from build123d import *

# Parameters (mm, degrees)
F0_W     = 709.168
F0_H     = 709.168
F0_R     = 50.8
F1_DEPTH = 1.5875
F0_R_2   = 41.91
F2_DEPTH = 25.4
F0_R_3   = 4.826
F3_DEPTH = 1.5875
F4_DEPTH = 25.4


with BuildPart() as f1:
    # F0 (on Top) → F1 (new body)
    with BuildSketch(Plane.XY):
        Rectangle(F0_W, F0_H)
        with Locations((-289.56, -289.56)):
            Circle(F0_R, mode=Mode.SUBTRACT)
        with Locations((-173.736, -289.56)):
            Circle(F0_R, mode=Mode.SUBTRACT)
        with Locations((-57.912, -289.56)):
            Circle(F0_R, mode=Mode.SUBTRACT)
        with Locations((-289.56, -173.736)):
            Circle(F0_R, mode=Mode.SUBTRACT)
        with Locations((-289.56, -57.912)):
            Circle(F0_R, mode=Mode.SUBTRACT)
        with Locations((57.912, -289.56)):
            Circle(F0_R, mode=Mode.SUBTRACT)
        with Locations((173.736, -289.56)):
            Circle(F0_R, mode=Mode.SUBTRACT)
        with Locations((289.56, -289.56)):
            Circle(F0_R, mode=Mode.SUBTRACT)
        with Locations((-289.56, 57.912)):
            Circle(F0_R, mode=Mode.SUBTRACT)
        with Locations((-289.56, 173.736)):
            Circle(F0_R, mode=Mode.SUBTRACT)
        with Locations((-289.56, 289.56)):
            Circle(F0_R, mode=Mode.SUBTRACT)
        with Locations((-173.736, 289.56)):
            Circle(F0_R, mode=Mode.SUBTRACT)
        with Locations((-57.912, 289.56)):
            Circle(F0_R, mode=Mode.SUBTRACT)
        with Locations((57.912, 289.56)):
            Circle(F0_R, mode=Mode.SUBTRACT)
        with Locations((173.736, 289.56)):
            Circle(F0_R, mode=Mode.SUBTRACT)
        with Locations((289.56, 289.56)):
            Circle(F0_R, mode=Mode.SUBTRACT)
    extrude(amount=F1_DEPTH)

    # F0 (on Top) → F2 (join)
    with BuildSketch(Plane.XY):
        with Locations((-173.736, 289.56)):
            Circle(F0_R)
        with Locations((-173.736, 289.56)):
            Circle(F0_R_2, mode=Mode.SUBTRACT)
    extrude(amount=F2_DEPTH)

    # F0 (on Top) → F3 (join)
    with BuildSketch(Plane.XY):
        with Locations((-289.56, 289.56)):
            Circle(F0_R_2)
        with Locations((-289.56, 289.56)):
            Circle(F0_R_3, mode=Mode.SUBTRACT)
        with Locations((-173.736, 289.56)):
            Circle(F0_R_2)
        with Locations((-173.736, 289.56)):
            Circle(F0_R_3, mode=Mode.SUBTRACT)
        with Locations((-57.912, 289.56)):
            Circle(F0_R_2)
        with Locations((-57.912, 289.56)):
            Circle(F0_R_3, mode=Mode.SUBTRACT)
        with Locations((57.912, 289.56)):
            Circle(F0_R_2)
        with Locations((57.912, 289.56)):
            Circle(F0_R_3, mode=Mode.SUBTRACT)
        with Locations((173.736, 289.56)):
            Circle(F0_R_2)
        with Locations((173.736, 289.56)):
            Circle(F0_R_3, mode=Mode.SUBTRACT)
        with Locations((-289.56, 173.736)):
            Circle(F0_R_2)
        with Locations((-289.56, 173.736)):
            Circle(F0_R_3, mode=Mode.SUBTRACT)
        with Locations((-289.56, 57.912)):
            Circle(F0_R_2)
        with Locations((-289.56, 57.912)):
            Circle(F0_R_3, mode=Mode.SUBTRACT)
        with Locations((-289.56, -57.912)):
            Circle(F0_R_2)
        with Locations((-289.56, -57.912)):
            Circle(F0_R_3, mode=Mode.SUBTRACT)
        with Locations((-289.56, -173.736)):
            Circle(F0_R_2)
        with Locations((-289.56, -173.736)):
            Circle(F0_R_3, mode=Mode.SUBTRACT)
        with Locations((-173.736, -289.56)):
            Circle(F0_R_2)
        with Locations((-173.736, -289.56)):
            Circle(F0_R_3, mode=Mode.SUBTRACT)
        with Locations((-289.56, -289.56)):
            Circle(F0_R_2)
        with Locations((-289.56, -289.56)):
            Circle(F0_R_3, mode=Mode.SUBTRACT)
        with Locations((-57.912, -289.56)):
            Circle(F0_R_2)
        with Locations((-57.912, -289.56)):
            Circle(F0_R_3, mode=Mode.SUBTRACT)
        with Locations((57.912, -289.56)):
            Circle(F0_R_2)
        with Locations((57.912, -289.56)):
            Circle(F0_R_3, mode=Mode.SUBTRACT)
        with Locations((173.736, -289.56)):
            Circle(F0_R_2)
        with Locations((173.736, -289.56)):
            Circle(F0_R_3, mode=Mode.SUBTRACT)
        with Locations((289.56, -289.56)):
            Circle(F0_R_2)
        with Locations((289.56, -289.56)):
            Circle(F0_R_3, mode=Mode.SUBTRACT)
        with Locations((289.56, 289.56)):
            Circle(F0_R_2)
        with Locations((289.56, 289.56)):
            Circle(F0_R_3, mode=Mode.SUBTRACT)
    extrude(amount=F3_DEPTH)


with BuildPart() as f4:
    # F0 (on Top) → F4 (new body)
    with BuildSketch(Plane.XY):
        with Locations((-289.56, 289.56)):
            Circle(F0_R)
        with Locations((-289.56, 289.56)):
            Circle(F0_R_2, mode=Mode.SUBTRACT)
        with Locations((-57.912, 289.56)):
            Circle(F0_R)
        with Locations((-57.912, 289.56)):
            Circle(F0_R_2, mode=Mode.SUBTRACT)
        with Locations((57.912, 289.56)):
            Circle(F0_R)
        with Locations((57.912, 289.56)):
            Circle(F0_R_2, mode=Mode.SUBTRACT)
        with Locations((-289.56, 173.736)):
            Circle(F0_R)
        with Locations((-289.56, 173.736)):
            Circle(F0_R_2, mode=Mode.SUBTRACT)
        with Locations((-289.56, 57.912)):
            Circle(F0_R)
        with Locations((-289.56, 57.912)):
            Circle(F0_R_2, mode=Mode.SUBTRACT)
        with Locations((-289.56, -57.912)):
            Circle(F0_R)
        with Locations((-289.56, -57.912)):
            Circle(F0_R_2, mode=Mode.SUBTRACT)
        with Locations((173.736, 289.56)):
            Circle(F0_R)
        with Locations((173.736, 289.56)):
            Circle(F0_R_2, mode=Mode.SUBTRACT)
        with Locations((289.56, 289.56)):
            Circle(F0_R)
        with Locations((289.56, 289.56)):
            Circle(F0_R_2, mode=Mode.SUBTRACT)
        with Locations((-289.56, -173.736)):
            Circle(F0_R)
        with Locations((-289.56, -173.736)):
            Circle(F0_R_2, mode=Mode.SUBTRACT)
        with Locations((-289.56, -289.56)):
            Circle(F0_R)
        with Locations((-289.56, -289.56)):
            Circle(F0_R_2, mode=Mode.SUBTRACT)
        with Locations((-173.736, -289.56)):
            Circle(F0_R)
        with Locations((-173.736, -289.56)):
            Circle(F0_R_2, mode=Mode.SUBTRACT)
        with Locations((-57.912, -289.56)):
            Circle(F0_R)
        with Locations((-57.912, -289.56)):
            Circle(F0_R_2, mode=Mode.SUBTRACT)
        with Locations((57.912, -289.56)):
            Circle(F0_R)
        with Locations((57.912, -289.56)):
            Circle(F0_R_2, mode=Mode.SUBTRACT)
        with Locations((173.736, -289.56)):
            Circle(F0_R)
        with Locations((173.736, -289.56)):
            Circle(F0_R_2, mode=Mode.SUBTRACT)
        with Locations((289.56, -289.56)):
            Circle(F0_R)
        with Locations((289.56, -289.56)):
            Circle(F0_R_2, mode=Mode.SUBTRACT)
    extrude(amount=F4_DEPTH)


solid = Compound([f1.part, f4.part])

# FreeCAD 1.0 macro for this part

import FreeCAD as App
import Part
import Sketcher
from FreeCAD import Vector
Q = App.Units.Quantity


def add_polygon(sketch, points):
    """Adds a closed chain of lines whose ends are joined by coincident constraints."""
    first, n = sketch.GeometryCount, len(points)
    for a, b in zip(points, points[1:] + points[:1]):
        sketch.addGeometry(Part.LineSegment(App.Vector(*a, 0), App.Vector(*b, 0)), False)
    for i in range(n):
        sketch.addConstraint(Sketcher.Constraint("Coincident", first + i, 2, first + (i + 1) % n, 1))

doc = App.newDocument("Part")
params = doc.addObject("Spreadsheet::Sheet", "Params")
for row, (alias, value) in enumerate([
    ("sketch1_diameter", "4 in"),
    ("sketch1_width", "27.92 in"),
    ("pad1_length", "0.0625 in"),
    ("sketch2_diameter", "4 in"),
    ("sketch2_diameter2", "3.3 in"),
    ("pad2_length", "1 in"),
    ("sketch3_diameter", "3.3 in"),
    ("sketch3_diameter2", "0.38 in"),
    ("pad3_length", "0.0625 in"),
    ("sketch4_diameter", "4 in"),
    ("sketch4_diameter2", "3.3 in"),
    ("pad4_length", "1 in"),
], start=1):
    params.set(f"A{row}", alias)
    params.set(f"B{row}", "=" + value)
    params.setAlias(f"B{row}", alias)

body = doc.addObject("PartDesign::Body", "Body")
body.AllowCompound = True

# Sketch on XY plane
sketch1 = doc.addObject("Sketcher::SketchObject", "Sketch")
body.addObject(sketch1)
sketch1.AttachmentSupport = (doc.XY_Plane, [""])
sketch1.MapMode = "FlatFace"
add_polygon(sketch1, [(-355, 355), (-355, -355), (355, -355), (355, 355)])  # lines 0-3
sketch1.addGeometry(Part.Circle(Vector(-290, -290, 0), Vector(0, 0, 1), 51), False)  # 4
sketch1.addGeometry(Part.Circle(Vector(-174, -290, 0), Vector(0, 0, 1), 51), False)  # 5
sketch1.addGeometry(Part.Circle(Vector(-290, -174, 0), Vector(0, 0, 1), 51), False)  # 6
sketch1.addGeometry(Part.Circle(Vector(-58, -290, 0), Vector(0, 0, 1), 51), False)  # 7
sketch1.addGeometry(Part.Circle(Vector(-290, -58, 0), Vector(0, 0, 1), 51), False)  # 8
sketch1.addGeometry(Part.Circle(Vector(58, -290, 0), Vector(0, 0, 1), 51), False)  # 9
sketch1.addGeometry(Part.Circle(Vector(174, -290, 0), Vector(0, 0, 1), 51), False)  # 10
sketch1.addGeometry(Part.Circle(Vector(290, -290, 0), Vector(0, 0, 1), 51), False)  # 11
sketch1.addGeometry(Part.Circle(Vector(-290, 58, 0), Vector(0, 0, 1), 51), False)  # 12
sketch1.addGeometry(Part.Circle(Vector(-290, 174, 0), Vector(0, 0, 1), 51), False)  # 13
sketch1.addGeometry(Part.Circle(Vector(-290, 290, 0), Vector(0, 0, 1), 51), False)  # 14
sketch1.addGeometry(Part.Circle(Vector(-174, 290, 0), Vector(0, 0, 1), 51), False)  # 15
sketch1.addGeometry(Part.Circle(Vector(-58, 290, 0), Vector(0, 0, 1), 51), False)  # 16
sketch1.addGeometry(Part.Circle(Vector(58, 290, 0), Vector(0, 0, 1), 51), False)  # 17
sketch1.addGeometry(Part.Circle(Vector(174, 290, 0), Vector(0, 0, 1), 51), False)  # 18
sketch1.addGeometry(Part.Circle(Vector(290, 290, 0), Vector(0, 0, 1), 51), False)  # 19
sketch1.addConstraint(Sketcher.Constraint("Vertical", 0))
sketch1.addConstraint(Sketcher.Constraint("Horizontal", 1))
sketch1.addConstraint(Sketcher.Constraint("Vertical", 2))
sketch1.addConstraint(Sketcher.Constraint("Horizontal", 3))
sketch1.addConstraint(Sketcher.Constraint("Equal", 4, 5))
sketch1.addConstraint(Sketcher.Constraint("Equal", 5, 6))
sketch1.addConstraint(Sketcher.Constraint("Equal", 6, 7))
sketch1.addConstraint(Sketcher.Constraint("Equal", 7, 8))
sketch1.addConstraint(Sketcher.Constraint("Equal", 8, 9))
sketch1.addConstraint(Sketcher.Constraint("Equal", 9, 10))
sketch1.addConstraint(Sketcher.Constraint("Equal", 10, 11))
sketch1.addConstraint(Sketcher.Constraint("Equal", 11, 12))
sketch1.addConstraint(Sketcher.Constraint("Equal", 12, 13))
sketch1.addConstraint(Sketcher.Constraint("Equal", 13, 14))
sketch1.addConstraint(Sketcher.Constraint("Equal", 14, 15))
sketch1.addConstraint(Sketcher.Constraint("Equal", 15, 16))
sketch1.addConstraint(Sketcher.Constraint("Equal", 16, 17))
sketch1.addConstraint(Sketcher.Constraint("Equal", 17, 18))
sketch1.addConstraint(Sketcher.Constraint("Equal", 18, 19))
sketch1.addConstraint(Sketcher.Constraint("Symmetric", 11, 3, 14, 3, -1, 1))
sketch1.addConstraint(Sketcher.Constraint("Symmetric", 10, 3, 15, 3, -1, 1))
sketch1.addConstraint(Sketcher.Constraint("Symmetric", 9, 3, 16, 3, -1, 1))
sketch1.addConstraint(Sketcher.Constraint("Symmetric", 7, 3, 17, 3, -1, 1))
sketch1.addConstraint(Sketcher.Constraint("Symmetric", 5, 3, 18, 3, -1, 1))
sketch1.addConstraint(Sketcher.Constraint("Symmetric", 4, 3, 19, 3, -1, 1))
sketch1.addConstraint(Sketcher.Constraint("Symmetric", 0, 2, 2, 2, -1, 1))
sketch1.addConstraint(Sketcher.Constraint("Symmetric", 7, 3, 9, 3, -2))
sketch1.addConstraint(Sketcher.Constraint("Symmetric", 5, 3, 10, 3, -2))
sketch1.addConstraint(Sketcher.Constraint("Symmetric", 4, 3, 11, 3, -2))
sketch1.addConstraint(Sketcher.Constraint("Symmetric", 8, 3, 12, 3, -1))
sketch1.addConstraint(Sketcher.Constraint("Symmetric", 6, 3, 13, 3, -1))
sketch1.addConstraint(Sketcher.Constraint("Horizontal", 4, 3, 5, 3))
sketch1.addConstraint(Sketcher.Constraint("Horizontal", 5, 3, 7, 3))
sketch1.addConstraint(Sketcher.Constraint("Vertical", 4, 3, 6, 3))
sketch1.addConstraint(Sketcher.Constraint("Vertical", 6, 3, 8, 3))
sketch1.addConstraint(Sketcher.Constraint("Equal", 3, 0))
sketch1.addConstraint(Sketcher.Constraint("Diameter", 4, Q("4 in")))
sketch1.addConstraint(Sketcher.Constraint("DistanceX", 1, 1, 1, 2, Q("27.92 in")))
sketch1.addConstraint(Sketcher.Constraint("DistanceX", 4, 3, -1, 1, Q("11.4 in")))
sketch1.addConstraint(Sketcher.Constraint("DistanceY", 4, 3, -1, 1, Q("11.4 in")))
sketch1.addConstraint(Sketcher.Constraint("DistanceX", 5, 3, 1, 2, Q("20.8 in")))
sketch1.addConstraint(Sketcher.Constraint("DistanceY", 6, 3, -1, 1, Q("6.84 in")))
sketch1.addConstraint(Sketcher.Constraint("DistanceX", 7, 3, -1, 1, Q("2.28 in")))
sketch1.addConstraint(Sketcher.Constraint("DistanceY", 8, 3, -1, 1, Q("2.28 in")))
sketch1.setExpression("Constraints[40]", "Params.sketch1_diameter")
sketch1.setExpression("Constraints[41]", "Params.sketch1_width")
pad1 = doc.addObject("PartDesign::Pad", "Pad")
body.addObject(pad1)
pad1.Profile = sketch1
pad1.setExpression("Length", "Params.pad1_length")

# Sketch on XY plane
sketch2 = doc.addObject("Sketcher::SketchObject", "Sketch001")
body.addObject(sketch2)
sketch2.AttachmentSupport = (doc.XY_Plane, [""])
sketch2.MapMode = "FlatFace"
sketch2.addGeometry(Part.Circle(Vector(-174, 290, 0), Vector(0, 0, 1), 51), False)
sketch2.addGeometry(Part.Circle(Vector(-174, 290, 0), Vector(0, 0, 1), 42), False)
sketch2.addConstraint(Sketcher.Constraint("Coincident", 1, 3, 0, 3))
sketch2.addConstraint(Sketcher.Constraint("Diameter", 0, Q("4 in")))
sketch2.addConstraint(Sketcher.Constraint("Diameter", 1, Q("3.3 in")))
sketch2.addConstraint(Sketcher.Constraint("DistanceY", -1, 1, 0, 3, Q("11.4 in")))
sketch2.addConstraint(Sketcher.Constraint("DistanceX", 0, 3, -1, 1, Q("6.84 in")))
sketch2.setExpression("Constraints[1]", "Params.sketch2_diameter")
sketch2.setExpression("Constraints[2]", "Params.sketch2_diameter2")
pad2 = doc.addObject("PartDesign::Pad", "Pad001")
body.addObject(pad2)
pad2.Profile = sketch2
pad2.setExpression("Length", "Params.pad2_length")

# Sketch on XY plane
sketch3 = doc.addObject("Sketcher::SketchObject", "Sketch002")
body.addObject(sketch3)
sketch3.AttachmentSupport = (doc.XY_Plane, [""])
sketch3.MapMode = "FlatFace"
sketch3.addGeometry(Part.Circle(Vector(-289.6, 289.6, 0), Vector(0, 0, 1), 41.9), False)
sketch3.addGeometry(Part.Circle(Vector(-289.6, 289.6, 0), Vector(0, 0, 1), 4.8), False)
sketch3.addGeometry(Part.Circle(Vector(-173.7, 289.6, 0), Vector(0, 0, 1), 41.9), False)
sketch3.addGeometry(Part.Circle(Vector(-173.7, 289.6, 0), Vector(0, 0, 1), 4.8), False)
sketch3.addGeometry(Part.Circle(Vector(-57.9, 289.6, 0), Vector(0, 0, 1), 41.9), False)
sketch3.addGeometry(Part.Circle(Vector(-57.9, 289.6, 0), Vector(0, 0, 1), 4.8), False)
sketch3.addGeometry(Part.Circle(Vector(57.9, 289.6, 0), Vector(0, 0, 1), 41.9), False)
sketch3.addGeometry(Part.Circle(Vector(57.9, 289.6, 0), Vector(0, 0, 1), 4.8), False)
sketch3.addGeometry(Part.Circle(Vector(173.7, 289.6, 0), Vector(0, 0, 1), 41.9), False)
sketch3.addGeometry(Part.Circle(Vector(173.7, 289.6, 0), Vector(0, 0, 1), 4.8), False)
sketch3.addGeometry(Part.Circle(Vector(-289.6, 173.7, 0), Vector(0, 0, 1), 41.9), False)
sketch3.addGeometry(Part.Circle(Vector(-289.6, 173.7, 0), Vector(0, 0, 1), 4.8), False)
sketch3.addGeometry(Part.Circle(Vector(-289.6, 57.9, 0), Vector(0, 0, 1), 41.9), False)
sketch3.addGeometry(Part.Circle(Vector(-289.6, 57.9, 0), Vector(0, 0, 1), 4.8), False)
sketch3.addGeometry(Part.Circle(Vector(-289.6, -57.9, 0), Vector(0, 0, 1), 41.9), False)
sketch3.addGeometry(Part.Circle(Vector(-289.6, -57.9, 0), Vector(0, 0, 1), 4.8), False)
sketch3.addGeometry(Part.Circle(Vector(-289.6, -173.7, 0), Vector(0, 0, 1), 41.9), False)
sketch3.addGeometry(Part.Circle(Vector(-289.6, -173.7, 0), Vector(0, 0, 1), 4.8), False)
sketch3.addGeometry(Part.Circle(Vector(-173.7, -289.6, 0), Vector(0, 0, 1), 41.9), False)
sketch3.addGeometry(Part.Circle(Vector(-173.7, -289.6, 0), Vector(0, 0, 1), 4.8), False)
sketch3.addGeometry(Part.Circle(Vector(-289.6, -289.6, 0), Vector(0, 0, 1), 41.9), False)
sketch3.addGeometry(Part.Circle(Vector(-289.6, -289.6, 0), Vector(0, 0, 1), 4.8), False)
sketch3.addGeometry(Part.Circle(Vector(-57.9, -289.6, 0), Vector(0, 0, 1), 41.9), False)
sketch3.addGeometry(Part.Circle(Vector(-57.9, -289.6, 0), Vector(0, 0, 1), 4.8), False)
sketch3.addGeometry(Part.Circle(Vector(57.9, -289.6, 0), Vector(0, 0, 1), 41.9), False)
sketch3.addGeometry(Part.Circle(Vector(57.9, -289.6, 0), Vector(0, 0, 1), 4.8), False)
sketch3.addGeometry(Part.Circle(Vector(173.7, -289.6, 0), Vector(0, 0, 1), 41.9), False)
sketch3.addGeometry(Part.Circle(Vector(173.7, -289.6, 0), Vector(0, 0, 1), 4.8), False)
sketch3.addGeometry(Part.Circle(Vector(289.6, -289.6, 0), Vector(0, 0, 1), 41.9), False)
sketch3.addGeometry(Part.Circle(Vector(289.6, -289.6, 0), Vector(0, 0, 1), 4.8), False)
sketch3.addGeometry(Part.Circle(Vector(289.6, 289.6, 0), Vector(0, 0, 1), 41.9), False)
sketch3.addGeometry(Part.Circle(Vector(289.6, 289.6, 0), Vector(0, 0, 1), 4.8), False)
sketch3.addConstraint(Sketcher.Constraint("Coincident", 1, 3, 0, 3))
sketch3.addConstraint(Sketcher.Constraint("Coincident", 3, 3, 2, 3))
sketch3.addConstraint(Sketcher.Constraint("Coincident", 5, 3, 4, 3))
sketch3.addConstraint(Sketcher.Constraint("Coincident", 7, 3, 6, 3))
sketch3.addConstraint(Sketcher.Constraint("Coincident", 9, 3, 8, 3))
sketch3.addConstraint(Sketcher.Constraint("Coincident", 11, 3, 10, 3))
sketch3.addConstraint(Sketcher.Constraint("Coincident", 13, 3, 12, 3))
sketch3.addConstraint(Sketcher.Constraint("Coincident", 15, 3, 14, 3))
sketch3.addConstraint(Sketcher.Constraint("Coincident", 17, 3, 16, 3))
sketch3.addConstraint(Sketcher.Constraint("Coincident", 19, 3, 18, 3))
sketch3.addConstraint(Sketcher.Constraint("Coincident", 21, 3, 20, 3))
sketch3.addConstraint(Sketcher.Constraint("Coincident", 23, 3, 22, 3))
sketch3.addConstraint(Sketcher.Constraint("Coincident", 25, 3, 24, 3))
sketch3.addConstraint(Sketcher.Constraint("Coincident", 27, 3, 26, 3))
sketch3.addConstraint(Sketcher.Constraint("Coincident", 29, 3, 28, 3))
sketch3.addConstraint(Sketcher.Constraint("Coincident", 31, 3, 30, 3))
sketch3.addConstraint(Sketcher.Constraint("Equal", 0, 2))
sketch3.addConstraint(Sketcher.Constraint("Equal", 1, 3))
sketch3.addConstraint(Sketcher.Constraint("Equal", 2, 4))
sketch3.addConstraint(Sketcher.Constraint("Equal", 3, 5))
sketch3.addConstraint(Sketcher.Constraint("Equal", 4, 6))
sketch3.addConstraint(Sketcher.Constraint("Equal", 5, 7))
sketch3.addConstraint(Sketcher.Constraint("Equal", 6, 8))
sketch3.addConstraint(Sketcher.Constraint("Equal", 7, 9))
sketch3.addConstraint(Sketcher.Constraint("Equal", 8, 10))
sketch3.addConstraint(Sketcher.Constraint("Equal", 9, 11))
sketch3.addConstraint(Sketcher.Constraint("Equal", 10, 12))
sketch3.addConstraint(Sketcher.Constraint("Equal", 11, 13))
sketch3.addConstraint(Sketcher.Constraint("Equal", 12, 14))
sketch3.addConstraint(Sketcher.Constraint("Equal", 13, 15))
sketch3.addConstraint(Sketcher.Constraint("Equal", 14, 16))
sketch3.addConstraint(Sketcher.Constraint("Equal", 15, 17))
sketch3.addConstraint(Sketcher.Constraint("Equal", 16, 18))
sketch3.addConstraint(Sketcher.Constraint("Equal", 17, 19))
sketch3.addConstraint(Sketcher.Constraint("Equal", 18, 20))
sketch3.addConstraint(Sketcher.Constraint("Equal", 19, 21))
sketch3.addConstraint(Sketcher.Constraint("Equal", 20, 22))
sketch3.addConstraint(Sketcher.Constraint("Equal", 21, 23))
sketch3.addConstraint(Sketcher.Constraint("Equal", 22, 24))
sketch3.addConstraint(Sketcher.Constraint("Equal", 23, 25))
sketch3.addConstraint(Sketcher.Constraint("Equal", 24, 26))
sketch3.addConstraint(Sketcher.Constraint("Equal", 25, 27))
sketch3.addConstraint(Sketcher.Constraint("Equal", 26, 28))
sketch3.addConstraint(Sketcher.Constraint("Equal", 27, 29))
sketch3.addConstraint(Sketcher.Constraint("Equal", 28, 30))
sketch3.addConstraint(Sketcher.Constraint("Equal", 29, 31))
sketch3.addConstraint(Sketcher.Constraint("Symmetric", 8, 3, 18, 3, -1, 1))
sketch3.addConstraint(Sketcher.Constraint("Symmetric", 6, 3, 22, 3, -1, 1))
sketch3.addConstraint(Sketcher.Constraint("Symmetric", 4, 3, 24, 3, -1, 1))
sketch3.addConstraint(Sketcher.Constraint("Symmetric", 2, 3, 26, 3, -1, 1))
sketch3.addConstraint(Sketcher.Constraint("Symmetric", 0, 3, 28, 3, -1, 1))
sketch3.addConstraint(Sketcher.Constraint("Symmetric", 20, 3, 30, 3, -1, 1))
sketch3.addConstraint(Sketcher.Constraint("Symmetric", 4, 3, 6, 3, -2))
sketch3.addConstraint(Sketcher.Constraint("Symmetric", 2, 3, 8, 3, -2))
sketch3.addConstraint(Sketcher.Constraint("Symmetric", 20, 3, 28, 3, -2))
sketch3.addConstraint(Sketcher.Constraint("Symmetric", 12, 3, 14, 3, -1))
sketch3.addConstraint(Sketcher.Constraint("Symmetric", 10, 3, 16, 3, -1))
sketch3.addConstraint(Sketcher.Constraint("Horizontal", 1, 3, 2, 3))
sketch3.addConstraint(Sketcher.Constraint("Horizontal", 3, 3, 4, 3))
sketch3.addConstraint(Sketcher.Constraint("Vertical", 1, 3, 10, 3))
sketch3.addConstraint(Sketcher.Constraint("Vertical", 11, 3, 12, 3))
sketch3.addConstraint(Sketcher.Constraint("Diameter", 0, Q("3.3 in")))
sketch3.addConstraint(Sketcher.Constraint("Diameter", 1, Q("0.38 in")))
sketch3.addConstraint(Sketcher.Constraint("DistanceX", 0, 3, -1, 1, Q("11.4 in")))
sketch3.addConstraint(Sketcher.Constraint("DistanceY", -1, 1, 0, 3, Q("11.4 in")))
sketch3.addConstraint(Sketcher.Constraint("DistanceX", 2, 3, -1, 1, Q("6.84 in")))
sketch3.addConstraint(Sketcher.Constraint("DistanceX", 4, 3, -1, 1, Q("2.28 in")))
sketch3.addConstraint(Sketcher.Constraint("DistanceY", -1, 1, 10, 3, Q("6.84 in")))
sketch3.addConstraint(Sketcher.Constraint("DistanceY", -1, 1, 12, 3, Q("2.28 in")))
sketch3.setExpression("Constraints[61]", "Params.sketch3_diameter")
sketch3.setExpression("Constraints[62]", "Params.sketch3_diameter2")
pad3 = doc.addObject("PartDesign::Pad", "Pad002")
body.addObject(pad3)
pad3.Profile = sketch3
pad3.setExpression("Length", "Params.pad3_length")
body2 = doc.addObject("PartDesign::Body", "Body001")
body2.AllowCompound = True

# Sketch on XY plane
sketch4 = doc.addObject("Sketcher::SketchObject", "Sketch003")
body2.addObject(sketch4)
sketch4.AttachmentSupport = (doc.getObject("XY_Plane001"), [""])
sketch4.MapMode = "FlatFace"
sketch4.addGeometry(Part.Circle(Vector(-290, 290, 0), Vector(0, 0, 1), 51), False)
sketch4.addGeometry(Part.Circle(Vector(-290, 290, 0), Vector(0, 0, 1), 42), False)
sketch4.addGeometry(Part.Circle(Vector(-58, 290, 0), Vector(0, 0, 1), 51), False)
sketch4.addGeometry(Part.Circle(Vector(-58, 290, 0), Vector(0, 0, 1), 42), False)
sketch4.addGeometry(Part.Circle(Vector(58, 290, 0), Vector(0, 0, 1), 51), False)
sketch4.addGeometry(Part.Circle(Vector(58, 290, 0), Vector(0, 0, 1), 42), False)
sketch4.addGeometry(Part.Circle(Vector(-290, 174, 0), Vector(0, 0, 1), 51), False)
sketch4.addGeometry(Part.Circle(Vector(-290, 174, 0), Vector(0, 0, 1), 42), False)
sketch4.addGeometry(Part.Circle(Vector(-290, 58, 0), Vector(0, 0, 1), 51), False)
sketch4.addGeometry(Part.Circle(Vector(-290, 58, 0), Vector(0, 0, 1), 42), False)
sketch4.addGeometry(Part.Circle(Vector(-290, -58, 0), Vector(0, 0, 1), 51), False)
sketch4.addGeometry(Part.Circle(Vector(-290, -58, 0), Vector(0, 0, 1), 42), False)
sketch4.addGeometry(Part.Circle(Vector(174, 290, 0), Vector(0, 0, 1), 51), False)
sketch4.addGeometry(Part.Circle(Vector(174, 290, 0), Vector(0, 0, 1), 42), False)
sketch4.addGeometry(Part.Circle(Vector(290, 290, 0), Vector(0, 0, 1), 51), False)
sketch4.addGeometry(Part.Circle(Vector(290, 290, 0), Vector(0, 0, 1), 42), False)
sketch4.addGeometry(Part.Circle(Vector(-290, -174, 0), Vector(0, 0, 1), 51), False)
sketch4.addGeometry(Part.Circle(Vector(-290, -174, 0), Vector(0, 0, 1), 42), False)
sketch4.addGeometry(Part.Circle(Vector(-290, -290, 0), Vector(0, 0, 1), 51), False)
sketch4.addGeometry(Part.Circle(Vector(-290, -290, 0), Vector(0, 0, 1), 42), False)
sketch4.addGeometry(Part.Circle(Vector(-174, -290, 0), Vector(0, 0, 1), 51), False)
sketch4.addGeometry(Part.Circle(Vector(-174, -290, 0), Vector(0, 0, 1), 42), False)
sketch4.addGeometry(Part.Circle(Vector(-58, -290, 0), Vector(0, 0, 1), 51), False)
sketch4.addGeometry(Part.Circle(Vector(-58, -290, 0), Vector(0, 0, 1), 42), False)
sketch4.addGeometry(Part.Circle(Vector(58, -290, 0), Vector(0, 0, 1), 51), False)
sketch4.addGeometry(Part.Circle(Vector(58, -290, 0), Vector(0, 0, 1), 42), False)
sketch4.addGeometry(Part.Circle(Vector(174, -290, 0), Vector(0, 0, 1), 51), False)
sketch4.addGeometry(Part.Circle(Vector(174, -290, 0), Vector(0, 0, 1), 42), False)
sketch4.addGeometry(Part.Circle(Vector(290, -290, 0), Vector(0, 0, 1), 51), False)
sketch4.addGeometry(Part.Circle(Vector(290, -290, 0), Vector(0, 0, 1), 42), False)
sketch4.addConstraint(Sketcher.Constraint("Coincident", 1, 3, 0, 3))
sketch4.addConstraint(Sketcher.Constraint("Coincident", 3, 3, 2, 3))
sketch4.addConstraint(Sketcher.Constraint("Coincident", 5, 3, 4, 3))
sketch4.addConstraint(Sketcher.Constraint("Coincident", 7, 3, 6, 3))
sketch4.addConstraint(Sketcher.Constraint("Coincident", 9, 3, 8, 3))
sketch4.addConstraint(Sketcher.Constraint("Coincident", 11, 3, 10, 3))
sketch4.addConstraint(Sketcher.Constraint("Coincident", 13, 3, 12, 3))
sketch4.addConstraint(Sketcher.Constraint("Coincident", 15, 3, 14, 3))
sketch4.addConstraint(Sketcher.Constraint("Coincident", 17, 3, 16, 3))
sketch4.addConstraint(Sketcher.Constraint("Coincident", 19, 3, 18, 3))
sketch4.addConstraint(Sketcher.Constraint("Coincident", 21, 3, 20, 3))
sketch4.addConstraint(Sketcher.Constraint("Coincident", 23, 3, 22, 3))
sketch4.addConstraint(Sketcher.Constraint("Coincident", 25, 3, 24, 3))
sketch4.addConstraint(Sketcher.Constraint("Coincident", 27, 3, 26, 3))
sketch4.addConstraint(Sketcher.Constraint("Coincident", 29, 3, 28, 3))
sketch4.addConstraint(Sketcher.Constraint("Equal", 0, 2))
sketch4.addConstraint(Sketcher.Constraint("Equal", 1, 3))
sketch4.addConstraint(Sketcher.Constraint("Equal", 2, 4))
sketch4.addConstraint(Sketcher.Constraint("Equal", 3, 5))
sketch4.addConstraint(Sketcher.Constraint("Equal", 4, 6))
sketch4.addConstraint(Sketcher.Constraint("Equal", 5, 7))
sketch4.addConstraint(Sketcher.Constraint("Equal", 6, 8))
sketch4.addConstraint(Sketcher.Constraint("Equal", 7, 9))
sketch4.addConstraint(Sketcher.Constraint("Equal", 8, 10))
sketch4.addConstraint(Sketcher.Constraint("Equal", 9, 11))
sketch4.addConstraint(Sketcher.Constraint("Equal", 10, 12))
sketch4.addConstraint(Sketcher.Constraint("Equal", 11, 13))
sketch4.addConstraint(Sketcher.Constraint("Equal", 12, 14))
sketch4.addConstraint(Sketcher.Constraint("Equal", 13, 15))
sketch4.addConstraint(Sketcher.Constraint("Equal", 14, 16))
sketch4.addConstraint(Sketcher.Constraint("Equal", 15, 17))
sketch4.addConstraint(Sketcher.Constraint("Equal", 16, 18))
sketch4.addConstraint(Sketcher.Constraint("Equal", 17, 19))
sketch4.addConstraint(Sketcher.Constraint("Equal", 18, 20))
sketch4.addConstraint(Sketcher.Constraint("Equal", 19, 21))
sketch4.addConstraint(Sketcher.Constraint("Equal", 20, 22))
sketch4.addConstraint(Sketcher.Constraint("Equal", 21, 23))
sketch4.addConstraint(Sketcher.Constraint("Equal", 22, 24))
sketch4.addConstraint(Sketcher.Constraint("Equal", 23, 25))
sketch4.addConstraint(Sketcher.Constraint("Equal", 24, 26))
sketch4.addConstraint(Sketcher.Constraint("Equal", 25, 27))
sketch4.addConstraint(Sketcher.Constraint("Equal", 26, 28))
sketch4.addConstraint(Sketcher.Constraint("Equal", 27, 29))
sketch4.addConstraint(Sketcher.Constraint("Symmetric", 14, 3, 18, 3, -1, 1))
sketch4.addConstraint(Sketcher.Constraint("Symmetric", 12, 3, 20, 3, -1, 1))
sketch4.addConstraint(Sketcher.Constraint("Symmetric", 4, 3, 22, 3, -1, 1))
sketch4.addConstraint(Sketcher.Constraint("Symmetric", 2, 3, 24, 3, -1, 1))
sketch4.addConstraint(Sketcher.Constraint("Symmetric", 0, 3, 28, 3, -1, 1))
sketch4.addConstraint(Sketcher.Constraint("Symmetric", 2, 3, 4, 3, -2))
sketch4.addConstraint(Sketcher.Constraint("Symmetric", 0, 3, 14, 3, -2))
sketch4.addConstraint(Sketcher.Constraint("Symmetric", 20, 3, 26, 3, -2))
sketch4.addConstraint(Sketcher.Constraint("Symmetric", 8, 3, 10, 3, -1))
sketch4.addConstraint(Sketcher.Constraint("Symmetric", 6, 3, 16, 3, -1))
sketch4.addConstraint(Sketcher.Constraint("Horizontal", 1, 3, 2, 3))
sketch4.addConstraint(Sketcher.Constraint("Horizontal", 5, 3, 12, 3))
sketch4.addConstraint(Sketcher.Constraint("Vertical", 1, 3, 6, 3))
sketch4.addConstraint(Sketcher.Constraint("Vertical", 7, 3, 8, 3))
sketch4.addConstraint(Sketcher.Constraint("Diameter", 0, Q("4 in")))
sketch4.addConstraint(Sketcher.Constraint("Diameter", 1, Q("3.3 in")))
sketch4.addConstraint(Sketcher.Constraint("DistanceX", 0, 3, -1, 1, Q("11.4 in")))
sketch4.addConstraint(Sketcher.Constraint("DistanceY", -1, 1, 0, 3, Q("11.4 in")))
sketch4.addConstraint(Sketcher.Constraint("DistanceX", 2, 3, -1, 1, Q("2.28 in")))
sketch4.addConstraint(Sketcher.Constraint("DistanceY", -1, 1, 6, 3, Q("6.84 in")))
sketch4.addConstraint(Sketcher.Constraint("DistanceY", -1, 1, 8, 3, Q("2.28 in")))
sketch4.addConstraint(Sketcher.Constraint("DistanceX", -1, 1, 12, 3, Q("6.84 in")))
sketch4.setExpression("Constraints[57]", "Params.sketch4_diameter")
sketch4.setExpression("Constraints[58]", "Params.sketch4_diameter2")
pad4 = doc.addObject("PartDesign::Pad", "Pad003")
body2.addObject(pad4)
pad4.Profile = sketch4
pad4.setExpression("Length", "Params.pad4_length")

doc.recompute()
